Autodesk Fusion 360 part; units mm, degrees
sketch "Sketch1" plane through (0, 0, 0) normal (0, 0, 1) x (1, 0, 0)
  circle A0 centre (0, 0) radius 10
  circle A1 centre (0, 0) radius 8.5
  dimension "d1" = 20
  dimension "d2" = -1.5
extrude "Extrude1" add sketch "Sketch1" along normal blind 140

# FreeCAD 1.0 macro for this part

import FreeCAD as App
import Part
import Sketcher
from FreeCAD import Vector

doc = App.newDocument("Part")
body = doc.addObject("PartDesign::Body", "Body")

sketch1 = body.newObject("Sketcher::SketchObject", "Sketch")
sketch1.AttachmentSupport = (doc.getObject("XY_Plane"), [""])
sketch1.MapMode = "FlatFace"
sketch1.addGeometry(Part.Circle(Vector(0, 0, 0), Vector(0, 0, 1), 10), False)
sketch1.addGeometry(Part.Circle(Vector(0, 0, 0), Vector(0, 0, 1), 8), False)
sketch1.addConstraint(Sketcher.Constraint("Coincident", 0, 3, -1, 1))
sketch1.addConstraint(Sketcher.Constraint("Coincident", 1, 3, -1, 1))
sketch1.addConstraint(Sketcher.Constraint("Diameter", 0, 20.0))
sketch1.addConstraint(Sketcher.Constraint("Diameter", 1, 17.0))
pad1 = body.newObject("PartDesign::Pad", "Pad")
pad1.Profile = sketch1
pad1.Length = 140

doc.recompute()
